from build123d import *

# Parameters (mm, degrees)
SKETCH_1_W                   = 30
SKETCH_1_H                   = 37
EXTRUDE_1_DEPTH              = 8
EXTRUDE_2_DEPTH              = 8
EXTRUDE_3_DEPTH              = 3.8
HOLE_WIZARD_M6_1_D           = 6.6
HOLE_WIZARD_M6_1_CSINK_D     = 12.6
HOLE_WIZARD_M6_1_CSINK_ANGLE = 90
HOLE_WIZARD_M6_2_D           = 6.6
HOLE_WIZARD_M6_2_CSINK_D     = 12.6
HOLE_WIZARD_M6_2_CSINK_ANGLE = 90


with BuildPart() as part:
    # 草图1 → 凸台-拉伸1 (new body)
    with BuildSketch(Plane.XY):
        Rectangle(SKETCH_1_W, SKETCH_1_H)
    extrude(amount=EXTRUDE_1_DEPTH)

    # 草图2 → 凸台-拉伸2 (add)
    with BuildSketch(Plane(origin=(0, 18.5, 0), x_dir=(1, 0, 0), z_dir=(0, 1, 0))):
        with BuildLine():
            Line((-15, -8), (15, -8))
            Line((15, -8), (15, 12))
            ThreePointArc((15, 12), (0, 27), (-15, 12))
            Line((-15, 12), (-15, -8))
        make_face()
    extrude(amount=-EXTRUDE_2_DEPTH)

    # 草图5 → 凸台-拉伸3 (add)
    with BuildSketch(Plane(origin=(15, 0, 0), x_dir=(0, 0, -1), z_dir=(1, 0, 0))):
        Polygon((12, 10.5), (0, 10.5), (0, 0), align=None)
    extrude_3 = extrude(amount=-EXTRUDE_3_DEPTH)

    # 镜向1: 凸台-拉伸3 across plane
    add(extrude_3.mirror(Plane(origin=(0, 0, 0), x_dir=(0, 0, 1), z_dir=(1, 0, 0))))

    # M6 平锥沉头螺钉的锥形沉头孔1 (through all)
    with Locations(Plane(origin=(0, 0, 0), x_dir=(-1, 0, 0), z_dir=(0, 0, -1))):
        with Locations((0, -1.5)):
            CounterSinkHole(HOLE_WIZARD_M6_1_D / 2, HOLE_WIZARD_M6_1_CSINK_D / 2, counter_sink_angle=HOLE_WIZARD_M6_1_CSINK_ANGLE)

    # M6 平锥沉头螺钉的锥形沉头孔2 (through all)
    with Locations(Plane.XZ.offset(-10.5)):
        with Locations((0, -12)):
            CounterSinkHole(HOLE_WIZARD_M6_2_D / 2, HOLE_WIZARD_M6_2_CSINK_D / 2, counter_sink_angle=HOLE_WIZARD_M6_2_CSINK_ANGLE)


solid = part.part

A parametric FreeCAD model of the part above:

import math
import FreeCAD as App
import Part
import Sketcher

V = App.Vector

doc = App.newDocument("Part")
body = doc.addObject("PartDesign::Body", "Body")

# Sketch on XY plane
sketch1 = doc.addObject("Sketcher::SketchObject", "Sketch")
body.addObject(sketch1)
sketch1.AttachmentSupport = (doc.XY_Plane, [""])
sketch1.MapMode = "FlatFace"
sketch1.addGeometry([
    Part.LineSegment(V(-15, 18.5, 0), V(-15, -18.5, 0)),
    Part.LineSegment(V(-15, -18.5, 0), V(15, -18.5, 0)),
    Part.LineSegment(V(15, -18.5, 0), V(15, 18.5, 0)),
    Part.LineSegment(V(15, 18.5, 0), V(-15, 18.5, 0)),
], False)
sketch1.addConstraint([
    Sketcher.Constraint("Coincident", 0, 2, 1, 1),
    Sketcher.Constraint("Coincident", 1, 2, 2, 1),
    Sketcher.Constraint("Coincident", 2, 2, 3, 1),
    Sketcher.Constraint("Coincident", 3, 2, 0, 1),
    Sketcher.Constraint("Vertical", 0),
    Sketcher.Constraint("Horizontal", 1),
    Sketcher.Constraint("Vertical", 2),
    Sketcher.Constraint("Horizontal", 3),
    Sketcher.Constraint("Symmetric", 0, 2, 2, 2, -1, 1),
    Sketcher.Constraint("DistanceX", 1, 1, 1, 2, 30.0),
    Sketcher.Constraint("DistanceY", 0, 2, 0, 1, 37.0),
])
pad1 = doc.addObject("PartDesign::Pad", "Pad")
body.addObject(pad1)
pad1.Profile = sketch1
pad1.Length = 8

# Sketch on XZ plane
sketch2 = doc.addObject("Sketcher::SketchObject", "Sketch001")
body.addObject(sketch2)
sketch2.AttachmentSupport = (doc.XZ_Plane, [""])
sketch2.MapMode = "FlatFace"
sketch2.AttachmentOffset = App.Placement(V(0, 0, -18.5), App.Rotation())
sketch2.addGeometry([
    Part.LineSegment(V(-15, 8, 0), V(15, 8, 0)),
    Part.LineSegment(V(15, 8, 0), V(15, -12, 0)),
    Part.ArcOfCircle(Part.Circle(V(0, -12, 0), V(0, 0, 1), 15), math.radians(180), math.radians(360)),
    Part.LineSegment(V(-15, -12, 0), V(-15, 8, 0)),
], False)
sketch2.addConstraint([
    Sketcher.Constraint("Coincident", 0, 2, 1, 1),
    Sketcher.Constraint("Tangent", 1, 2, 2, 2),
    Sketcher.Constraint("Tangent", 2, 1, 3, 1),
    Sketcher.Constraint("Coincident", 3, 2, 0, 1),
    Sketcher.Constraint("Horizontal", 0),
    Sketcher.Constraint("Vertical", 1),
    Sketcher.Constraint("Vertical", 3),
    Sketcher.Constraint("PointOnObject", 2, 3, -2),
    Sketcher.Constraint("Radius", 2, 15.0),
    Sketcher.Constraint("DistanceY", 1, 2, 1, 1, 20.0),
    Sketcher.Constraint("DistanceY", 2, 3, -1, 1, 12.0),
])
pad2 = doc.addObject("PartDesign::Pad", "Pad001")
body.addObject(pad2)
pad2.Profile = sketch2
pad2.Length = 8

# Sketch on YZ plane
sketch3 = doc.addObject("Sketcher::SketchObject", "Sketch002")
body.addObject(sketch3)
sketch3.AttachmentSupport = (doc.YZ_Plane, [""])
sketch3.MapMode = "FlatFace"
sketch3.AttachmentOffset = App.Placement(V(0, 0, 15), App.Rotation())
sketch3.addGeometry([
    Part.LineSegment(V(10.5, -12, 0), V(10.5, 0, 0)),
    Part.LineSegment(V(10.5, 0, 0), V(0, 0, 0)),
    Part.LineSegment(V(0, 0, 0), V(10.5, -12, 0)),
], False)
sketch3.addConstraint([
    Sketcher.Constraint("Coincident", 0, 2, 1, 1),
    Sketcher.Constraint("Coincident", 1, 2, 2, 1),
    Sketcher.Constraint("Coincident", 2, 2, 0, 1),
    Sketcher.Constraint("Vertical", 0),
    Sketcher.Constraint("Horizontal", 1),
    Sketcher.Constraint("Coincident", 1, 2, -1, 1),
    Sketcher.Constraint("DistanceY", 0, 1, 0, 2, 12.0),
    Sketcher.Constraint("DistanceX", 1, 2, 1, 1, 10.5),
])
pad3 = doc.addObject("PartDesign::Pad", "Pad002")
body.addObject(pad3)
pad3.Profile = sketch3
pad3.Length = 3.8
pad3.Reversed = True
doc.recompute()

mirrored = doc.addObject("PartDesign::Mirrored", "Mirrored")
body.addObject(mirrored)
mirrored.Originals = [pad3]
mirrored.MirrorPlane = (doc.YZ_Plane, [""])
body.Tip = mirrored

# Sketch on XY plane
sketch4 = doc.addObject("Sketcher::SketchObject", "Sketch003")
body.addObject(sketch4)
sketch4.AttachmentSupport = (doc.XY_Plane, [""])
sketch4.MapMode = "FlatFace"
sketch4.addGeometry(Part.Circle(V(0, -1.5, 0), V(0, 0, 1), 3.3), False)
sketch4.addConstraint([
    Sketcher.Constraint("PointOnObject", 0, 3, -2),
    Sketcher.Constraint("Diameter", 0, 6.6),
    Sketcher.Constraint("DistanceY", 0, 3, -1, 1, 1.5),
])
doc.recompute()
hole = doc.addObject("PartDesign::Hole", "Hole")
body.addObject(hole)
hole.Profile = sketch4
hole.ThreadType = "None"
hole.Diameter = 6.6
hole.DepthType = "ThroughAll"
hole.HoleCutType = "Countersink"
hole.HoleCutDiameter = 12.6
hole.HoleCutCountersinkAngle = 90
hole.Reversed = True

# Sketch on XZ plane
sketch5 = doc.addObject("Sketcher::SketchObject", "Sketch004")
body.addObject(sketch5)
sketch5.AttachmentSupport = (doc.XZ_Plane, [""])
sketch5.MapMode = "FlatFace"
sketch5.AttachmentOffset = App.Placement(V(0, 0, -10.5), App.Rotation())
sketch5.addGeometry(Part.Circle(V(0, -12, 0), V(0, 0, 1), 3.3), False)
sketch5.addConstraint([
    Sketcher.Constraint("PointOnObject", 0, 3, -2),
    Sketcher.Constraint("Diameter", 0, 6.6),
    Sketcher.Constraint("DistanceY", 0, 3, -1, 1, 12.0),
])
doc.recompute()
hole2 = doc.addObject("PartDesign::Hole", "Hole001")
body.addObject(hole2)
hole2.Profile = sketch5
hole2.ThreadType = "None"
hole2.Diameter = 6.6
hole2.DepthType = "ThroughAll"
hole2.HoleCutType = "Countersink"
hole2.HoleCutDiameter = 12.6
hole2.HoleCutCountersinkAngle = 90

doc.recompute()
